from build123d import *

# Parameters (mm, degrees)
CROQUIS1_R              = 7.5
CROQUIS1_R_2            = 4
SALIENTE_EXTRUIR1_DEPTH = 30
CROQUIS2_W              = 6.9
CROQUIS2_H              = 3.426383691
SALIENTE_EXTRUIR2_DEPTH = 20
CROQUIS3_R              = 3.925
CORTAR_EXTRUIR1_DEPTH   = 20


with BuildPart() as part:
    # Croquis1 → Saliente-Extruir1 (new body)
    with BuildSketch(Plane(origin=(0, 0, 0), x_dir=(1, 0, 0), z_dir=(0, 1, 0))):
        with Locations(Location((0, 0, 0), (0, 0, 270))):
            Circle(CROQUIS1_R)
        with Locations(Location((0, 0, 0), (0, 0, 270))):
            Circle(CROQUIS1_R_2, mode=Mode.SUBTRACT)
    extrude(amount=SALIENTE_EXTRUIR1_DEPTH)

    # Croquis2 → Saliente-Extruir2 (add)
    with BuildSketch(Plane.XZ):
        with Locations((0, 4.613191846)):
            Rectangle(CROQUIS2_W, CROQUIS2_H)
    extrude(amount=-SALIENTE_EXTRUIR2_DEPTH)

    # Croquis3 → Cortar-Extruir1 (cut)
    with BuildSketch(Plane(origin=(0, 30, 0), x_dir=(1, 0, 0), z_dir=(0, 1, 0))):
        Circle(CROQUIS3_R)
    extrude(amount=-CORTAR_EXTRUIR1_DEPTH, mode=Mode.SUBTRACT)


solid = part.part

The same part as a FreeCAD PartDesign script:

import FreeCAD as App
import Part
import Sketcher

V = App.Vector

doc = App.newDocument("Part")
body = doc.addObject("PartDesign::Body", "Body")

# Sketch on XZ plane
sketch1 = body.newObject("Sketcher::SketchObject", "Sketch")
sketch1.AttachmentSupport = (doc.getObject("XZ_Plane"), [""])
sketch1.MapMode = "FlatFace"
sketch1.addGeometry([
    Part.Circle(V(0, 0, 0), V(0, 0, 1), 7.5),
    Part.Circle(V(0, 0, 0), V(0, 0, 1), 4),
], False)
sketch1.addConstraint([
    Sketcher.Constraint("Coincident", 0, 3, -1, 1),
    Sketcher.Constraint("Coincident", 1, 3, -1, 1),
    Sketcher.Constraint("Diameter", 0, 15.0),
    Sketcher.Constraint("Diameter", 1, 8.0),
])
pad1 = body.newObject("PartDesign::Pad", "Pad")
pad1.Profile = sketch1
pad1.Length = 30
pad1.Reversed = True

# Sketch on XZ plane
sketch2 = body.newObject("Sketcher::SketchObject", "Sketch001")
sketch2.AttachmentSupport = (doc.getObject("XZ_Plane"), [""])
sketch2.MapMode = "FlatFace"
sketch2.addGeometry([
    Part.LineSegment(V(-3.5, 6.3, 0), V(-3.5, 2.9, 0)),
    Part.LineSegment(V(-3.5, 2.9, 0), V(3.5, 2.9, 0)),
    Part.LineSegment(V(3.5, 2.9, 0), V(3.5, 6.3, 0)),
    Part.LineSegment(V(3.5, 6.3, 0), V(-3.5, 6.3, 0)),
], False)
sketch2.addConstraint([
    Sketcher.Constraint("Coincident", 0, 2, 1, 1),
    Sketcher.Constraint("Coincident", 1, 2, 2, 1),
    Sketcher.Constraint("Coincident", 2, 2, 3, 1),
    Sketcher.Constraint("Coincident", 3, 2, 0, 1),
    Sketcher.Constraint("Vertical", 0),
    Sketcher.Constraint("Horizontal", 1),
    Sketcher.Constraint("Vertical", 2),
    Sketcher.Constraint("Horizontal", 3),
    Sketcher.Constraint("DistanceX", 1, 1, 1, 2, 6.9),
    Sketcher.Constraint("DistanceY", -1, 1, 0, 2, 2.9),
    Sketcher.Constraint("DistanceX", 0, 2, -1, 1, 3.45),
    Sketcher.Constraint("DistanceY", 0, 2, 0, 1, 3.426384),
])
pad2 = body.newObject("PartDesign::Pad", "Pad001")
pad2.Profile = sketch2
pad2.Length = 20
pad2.Reversed = True

# Sketch on XZ plane
sketch3 = body.newObject("Sketcher::SketchObject", "Sketch002")
sketch3.AttachmentSupport = (doc.getObject("XZ_Plane"), [""])
sketch3.MapMode = "FlatFace"
sketch3.AttachmentOffset = App.Placement(V(0, 0, -30), App.Rotation())
sketch3.addGeometry(Part.Circle(V(0, 0, 0), V(0, 0, 1), 3.9), False)
sketch3.addConstraint([
    Sketcher.Constraint("Coincident", 0, 3, -1, 1),
    Sketcher.Constraint("Diameter", 0, 7.85),
])
pocket1 = body.newObject("PartDesign::Pocket", "Pocket")
pocket1.Profile = sketch3
pocket1.Length = 20
pocket1.Reversed = True

doc.recompute()
